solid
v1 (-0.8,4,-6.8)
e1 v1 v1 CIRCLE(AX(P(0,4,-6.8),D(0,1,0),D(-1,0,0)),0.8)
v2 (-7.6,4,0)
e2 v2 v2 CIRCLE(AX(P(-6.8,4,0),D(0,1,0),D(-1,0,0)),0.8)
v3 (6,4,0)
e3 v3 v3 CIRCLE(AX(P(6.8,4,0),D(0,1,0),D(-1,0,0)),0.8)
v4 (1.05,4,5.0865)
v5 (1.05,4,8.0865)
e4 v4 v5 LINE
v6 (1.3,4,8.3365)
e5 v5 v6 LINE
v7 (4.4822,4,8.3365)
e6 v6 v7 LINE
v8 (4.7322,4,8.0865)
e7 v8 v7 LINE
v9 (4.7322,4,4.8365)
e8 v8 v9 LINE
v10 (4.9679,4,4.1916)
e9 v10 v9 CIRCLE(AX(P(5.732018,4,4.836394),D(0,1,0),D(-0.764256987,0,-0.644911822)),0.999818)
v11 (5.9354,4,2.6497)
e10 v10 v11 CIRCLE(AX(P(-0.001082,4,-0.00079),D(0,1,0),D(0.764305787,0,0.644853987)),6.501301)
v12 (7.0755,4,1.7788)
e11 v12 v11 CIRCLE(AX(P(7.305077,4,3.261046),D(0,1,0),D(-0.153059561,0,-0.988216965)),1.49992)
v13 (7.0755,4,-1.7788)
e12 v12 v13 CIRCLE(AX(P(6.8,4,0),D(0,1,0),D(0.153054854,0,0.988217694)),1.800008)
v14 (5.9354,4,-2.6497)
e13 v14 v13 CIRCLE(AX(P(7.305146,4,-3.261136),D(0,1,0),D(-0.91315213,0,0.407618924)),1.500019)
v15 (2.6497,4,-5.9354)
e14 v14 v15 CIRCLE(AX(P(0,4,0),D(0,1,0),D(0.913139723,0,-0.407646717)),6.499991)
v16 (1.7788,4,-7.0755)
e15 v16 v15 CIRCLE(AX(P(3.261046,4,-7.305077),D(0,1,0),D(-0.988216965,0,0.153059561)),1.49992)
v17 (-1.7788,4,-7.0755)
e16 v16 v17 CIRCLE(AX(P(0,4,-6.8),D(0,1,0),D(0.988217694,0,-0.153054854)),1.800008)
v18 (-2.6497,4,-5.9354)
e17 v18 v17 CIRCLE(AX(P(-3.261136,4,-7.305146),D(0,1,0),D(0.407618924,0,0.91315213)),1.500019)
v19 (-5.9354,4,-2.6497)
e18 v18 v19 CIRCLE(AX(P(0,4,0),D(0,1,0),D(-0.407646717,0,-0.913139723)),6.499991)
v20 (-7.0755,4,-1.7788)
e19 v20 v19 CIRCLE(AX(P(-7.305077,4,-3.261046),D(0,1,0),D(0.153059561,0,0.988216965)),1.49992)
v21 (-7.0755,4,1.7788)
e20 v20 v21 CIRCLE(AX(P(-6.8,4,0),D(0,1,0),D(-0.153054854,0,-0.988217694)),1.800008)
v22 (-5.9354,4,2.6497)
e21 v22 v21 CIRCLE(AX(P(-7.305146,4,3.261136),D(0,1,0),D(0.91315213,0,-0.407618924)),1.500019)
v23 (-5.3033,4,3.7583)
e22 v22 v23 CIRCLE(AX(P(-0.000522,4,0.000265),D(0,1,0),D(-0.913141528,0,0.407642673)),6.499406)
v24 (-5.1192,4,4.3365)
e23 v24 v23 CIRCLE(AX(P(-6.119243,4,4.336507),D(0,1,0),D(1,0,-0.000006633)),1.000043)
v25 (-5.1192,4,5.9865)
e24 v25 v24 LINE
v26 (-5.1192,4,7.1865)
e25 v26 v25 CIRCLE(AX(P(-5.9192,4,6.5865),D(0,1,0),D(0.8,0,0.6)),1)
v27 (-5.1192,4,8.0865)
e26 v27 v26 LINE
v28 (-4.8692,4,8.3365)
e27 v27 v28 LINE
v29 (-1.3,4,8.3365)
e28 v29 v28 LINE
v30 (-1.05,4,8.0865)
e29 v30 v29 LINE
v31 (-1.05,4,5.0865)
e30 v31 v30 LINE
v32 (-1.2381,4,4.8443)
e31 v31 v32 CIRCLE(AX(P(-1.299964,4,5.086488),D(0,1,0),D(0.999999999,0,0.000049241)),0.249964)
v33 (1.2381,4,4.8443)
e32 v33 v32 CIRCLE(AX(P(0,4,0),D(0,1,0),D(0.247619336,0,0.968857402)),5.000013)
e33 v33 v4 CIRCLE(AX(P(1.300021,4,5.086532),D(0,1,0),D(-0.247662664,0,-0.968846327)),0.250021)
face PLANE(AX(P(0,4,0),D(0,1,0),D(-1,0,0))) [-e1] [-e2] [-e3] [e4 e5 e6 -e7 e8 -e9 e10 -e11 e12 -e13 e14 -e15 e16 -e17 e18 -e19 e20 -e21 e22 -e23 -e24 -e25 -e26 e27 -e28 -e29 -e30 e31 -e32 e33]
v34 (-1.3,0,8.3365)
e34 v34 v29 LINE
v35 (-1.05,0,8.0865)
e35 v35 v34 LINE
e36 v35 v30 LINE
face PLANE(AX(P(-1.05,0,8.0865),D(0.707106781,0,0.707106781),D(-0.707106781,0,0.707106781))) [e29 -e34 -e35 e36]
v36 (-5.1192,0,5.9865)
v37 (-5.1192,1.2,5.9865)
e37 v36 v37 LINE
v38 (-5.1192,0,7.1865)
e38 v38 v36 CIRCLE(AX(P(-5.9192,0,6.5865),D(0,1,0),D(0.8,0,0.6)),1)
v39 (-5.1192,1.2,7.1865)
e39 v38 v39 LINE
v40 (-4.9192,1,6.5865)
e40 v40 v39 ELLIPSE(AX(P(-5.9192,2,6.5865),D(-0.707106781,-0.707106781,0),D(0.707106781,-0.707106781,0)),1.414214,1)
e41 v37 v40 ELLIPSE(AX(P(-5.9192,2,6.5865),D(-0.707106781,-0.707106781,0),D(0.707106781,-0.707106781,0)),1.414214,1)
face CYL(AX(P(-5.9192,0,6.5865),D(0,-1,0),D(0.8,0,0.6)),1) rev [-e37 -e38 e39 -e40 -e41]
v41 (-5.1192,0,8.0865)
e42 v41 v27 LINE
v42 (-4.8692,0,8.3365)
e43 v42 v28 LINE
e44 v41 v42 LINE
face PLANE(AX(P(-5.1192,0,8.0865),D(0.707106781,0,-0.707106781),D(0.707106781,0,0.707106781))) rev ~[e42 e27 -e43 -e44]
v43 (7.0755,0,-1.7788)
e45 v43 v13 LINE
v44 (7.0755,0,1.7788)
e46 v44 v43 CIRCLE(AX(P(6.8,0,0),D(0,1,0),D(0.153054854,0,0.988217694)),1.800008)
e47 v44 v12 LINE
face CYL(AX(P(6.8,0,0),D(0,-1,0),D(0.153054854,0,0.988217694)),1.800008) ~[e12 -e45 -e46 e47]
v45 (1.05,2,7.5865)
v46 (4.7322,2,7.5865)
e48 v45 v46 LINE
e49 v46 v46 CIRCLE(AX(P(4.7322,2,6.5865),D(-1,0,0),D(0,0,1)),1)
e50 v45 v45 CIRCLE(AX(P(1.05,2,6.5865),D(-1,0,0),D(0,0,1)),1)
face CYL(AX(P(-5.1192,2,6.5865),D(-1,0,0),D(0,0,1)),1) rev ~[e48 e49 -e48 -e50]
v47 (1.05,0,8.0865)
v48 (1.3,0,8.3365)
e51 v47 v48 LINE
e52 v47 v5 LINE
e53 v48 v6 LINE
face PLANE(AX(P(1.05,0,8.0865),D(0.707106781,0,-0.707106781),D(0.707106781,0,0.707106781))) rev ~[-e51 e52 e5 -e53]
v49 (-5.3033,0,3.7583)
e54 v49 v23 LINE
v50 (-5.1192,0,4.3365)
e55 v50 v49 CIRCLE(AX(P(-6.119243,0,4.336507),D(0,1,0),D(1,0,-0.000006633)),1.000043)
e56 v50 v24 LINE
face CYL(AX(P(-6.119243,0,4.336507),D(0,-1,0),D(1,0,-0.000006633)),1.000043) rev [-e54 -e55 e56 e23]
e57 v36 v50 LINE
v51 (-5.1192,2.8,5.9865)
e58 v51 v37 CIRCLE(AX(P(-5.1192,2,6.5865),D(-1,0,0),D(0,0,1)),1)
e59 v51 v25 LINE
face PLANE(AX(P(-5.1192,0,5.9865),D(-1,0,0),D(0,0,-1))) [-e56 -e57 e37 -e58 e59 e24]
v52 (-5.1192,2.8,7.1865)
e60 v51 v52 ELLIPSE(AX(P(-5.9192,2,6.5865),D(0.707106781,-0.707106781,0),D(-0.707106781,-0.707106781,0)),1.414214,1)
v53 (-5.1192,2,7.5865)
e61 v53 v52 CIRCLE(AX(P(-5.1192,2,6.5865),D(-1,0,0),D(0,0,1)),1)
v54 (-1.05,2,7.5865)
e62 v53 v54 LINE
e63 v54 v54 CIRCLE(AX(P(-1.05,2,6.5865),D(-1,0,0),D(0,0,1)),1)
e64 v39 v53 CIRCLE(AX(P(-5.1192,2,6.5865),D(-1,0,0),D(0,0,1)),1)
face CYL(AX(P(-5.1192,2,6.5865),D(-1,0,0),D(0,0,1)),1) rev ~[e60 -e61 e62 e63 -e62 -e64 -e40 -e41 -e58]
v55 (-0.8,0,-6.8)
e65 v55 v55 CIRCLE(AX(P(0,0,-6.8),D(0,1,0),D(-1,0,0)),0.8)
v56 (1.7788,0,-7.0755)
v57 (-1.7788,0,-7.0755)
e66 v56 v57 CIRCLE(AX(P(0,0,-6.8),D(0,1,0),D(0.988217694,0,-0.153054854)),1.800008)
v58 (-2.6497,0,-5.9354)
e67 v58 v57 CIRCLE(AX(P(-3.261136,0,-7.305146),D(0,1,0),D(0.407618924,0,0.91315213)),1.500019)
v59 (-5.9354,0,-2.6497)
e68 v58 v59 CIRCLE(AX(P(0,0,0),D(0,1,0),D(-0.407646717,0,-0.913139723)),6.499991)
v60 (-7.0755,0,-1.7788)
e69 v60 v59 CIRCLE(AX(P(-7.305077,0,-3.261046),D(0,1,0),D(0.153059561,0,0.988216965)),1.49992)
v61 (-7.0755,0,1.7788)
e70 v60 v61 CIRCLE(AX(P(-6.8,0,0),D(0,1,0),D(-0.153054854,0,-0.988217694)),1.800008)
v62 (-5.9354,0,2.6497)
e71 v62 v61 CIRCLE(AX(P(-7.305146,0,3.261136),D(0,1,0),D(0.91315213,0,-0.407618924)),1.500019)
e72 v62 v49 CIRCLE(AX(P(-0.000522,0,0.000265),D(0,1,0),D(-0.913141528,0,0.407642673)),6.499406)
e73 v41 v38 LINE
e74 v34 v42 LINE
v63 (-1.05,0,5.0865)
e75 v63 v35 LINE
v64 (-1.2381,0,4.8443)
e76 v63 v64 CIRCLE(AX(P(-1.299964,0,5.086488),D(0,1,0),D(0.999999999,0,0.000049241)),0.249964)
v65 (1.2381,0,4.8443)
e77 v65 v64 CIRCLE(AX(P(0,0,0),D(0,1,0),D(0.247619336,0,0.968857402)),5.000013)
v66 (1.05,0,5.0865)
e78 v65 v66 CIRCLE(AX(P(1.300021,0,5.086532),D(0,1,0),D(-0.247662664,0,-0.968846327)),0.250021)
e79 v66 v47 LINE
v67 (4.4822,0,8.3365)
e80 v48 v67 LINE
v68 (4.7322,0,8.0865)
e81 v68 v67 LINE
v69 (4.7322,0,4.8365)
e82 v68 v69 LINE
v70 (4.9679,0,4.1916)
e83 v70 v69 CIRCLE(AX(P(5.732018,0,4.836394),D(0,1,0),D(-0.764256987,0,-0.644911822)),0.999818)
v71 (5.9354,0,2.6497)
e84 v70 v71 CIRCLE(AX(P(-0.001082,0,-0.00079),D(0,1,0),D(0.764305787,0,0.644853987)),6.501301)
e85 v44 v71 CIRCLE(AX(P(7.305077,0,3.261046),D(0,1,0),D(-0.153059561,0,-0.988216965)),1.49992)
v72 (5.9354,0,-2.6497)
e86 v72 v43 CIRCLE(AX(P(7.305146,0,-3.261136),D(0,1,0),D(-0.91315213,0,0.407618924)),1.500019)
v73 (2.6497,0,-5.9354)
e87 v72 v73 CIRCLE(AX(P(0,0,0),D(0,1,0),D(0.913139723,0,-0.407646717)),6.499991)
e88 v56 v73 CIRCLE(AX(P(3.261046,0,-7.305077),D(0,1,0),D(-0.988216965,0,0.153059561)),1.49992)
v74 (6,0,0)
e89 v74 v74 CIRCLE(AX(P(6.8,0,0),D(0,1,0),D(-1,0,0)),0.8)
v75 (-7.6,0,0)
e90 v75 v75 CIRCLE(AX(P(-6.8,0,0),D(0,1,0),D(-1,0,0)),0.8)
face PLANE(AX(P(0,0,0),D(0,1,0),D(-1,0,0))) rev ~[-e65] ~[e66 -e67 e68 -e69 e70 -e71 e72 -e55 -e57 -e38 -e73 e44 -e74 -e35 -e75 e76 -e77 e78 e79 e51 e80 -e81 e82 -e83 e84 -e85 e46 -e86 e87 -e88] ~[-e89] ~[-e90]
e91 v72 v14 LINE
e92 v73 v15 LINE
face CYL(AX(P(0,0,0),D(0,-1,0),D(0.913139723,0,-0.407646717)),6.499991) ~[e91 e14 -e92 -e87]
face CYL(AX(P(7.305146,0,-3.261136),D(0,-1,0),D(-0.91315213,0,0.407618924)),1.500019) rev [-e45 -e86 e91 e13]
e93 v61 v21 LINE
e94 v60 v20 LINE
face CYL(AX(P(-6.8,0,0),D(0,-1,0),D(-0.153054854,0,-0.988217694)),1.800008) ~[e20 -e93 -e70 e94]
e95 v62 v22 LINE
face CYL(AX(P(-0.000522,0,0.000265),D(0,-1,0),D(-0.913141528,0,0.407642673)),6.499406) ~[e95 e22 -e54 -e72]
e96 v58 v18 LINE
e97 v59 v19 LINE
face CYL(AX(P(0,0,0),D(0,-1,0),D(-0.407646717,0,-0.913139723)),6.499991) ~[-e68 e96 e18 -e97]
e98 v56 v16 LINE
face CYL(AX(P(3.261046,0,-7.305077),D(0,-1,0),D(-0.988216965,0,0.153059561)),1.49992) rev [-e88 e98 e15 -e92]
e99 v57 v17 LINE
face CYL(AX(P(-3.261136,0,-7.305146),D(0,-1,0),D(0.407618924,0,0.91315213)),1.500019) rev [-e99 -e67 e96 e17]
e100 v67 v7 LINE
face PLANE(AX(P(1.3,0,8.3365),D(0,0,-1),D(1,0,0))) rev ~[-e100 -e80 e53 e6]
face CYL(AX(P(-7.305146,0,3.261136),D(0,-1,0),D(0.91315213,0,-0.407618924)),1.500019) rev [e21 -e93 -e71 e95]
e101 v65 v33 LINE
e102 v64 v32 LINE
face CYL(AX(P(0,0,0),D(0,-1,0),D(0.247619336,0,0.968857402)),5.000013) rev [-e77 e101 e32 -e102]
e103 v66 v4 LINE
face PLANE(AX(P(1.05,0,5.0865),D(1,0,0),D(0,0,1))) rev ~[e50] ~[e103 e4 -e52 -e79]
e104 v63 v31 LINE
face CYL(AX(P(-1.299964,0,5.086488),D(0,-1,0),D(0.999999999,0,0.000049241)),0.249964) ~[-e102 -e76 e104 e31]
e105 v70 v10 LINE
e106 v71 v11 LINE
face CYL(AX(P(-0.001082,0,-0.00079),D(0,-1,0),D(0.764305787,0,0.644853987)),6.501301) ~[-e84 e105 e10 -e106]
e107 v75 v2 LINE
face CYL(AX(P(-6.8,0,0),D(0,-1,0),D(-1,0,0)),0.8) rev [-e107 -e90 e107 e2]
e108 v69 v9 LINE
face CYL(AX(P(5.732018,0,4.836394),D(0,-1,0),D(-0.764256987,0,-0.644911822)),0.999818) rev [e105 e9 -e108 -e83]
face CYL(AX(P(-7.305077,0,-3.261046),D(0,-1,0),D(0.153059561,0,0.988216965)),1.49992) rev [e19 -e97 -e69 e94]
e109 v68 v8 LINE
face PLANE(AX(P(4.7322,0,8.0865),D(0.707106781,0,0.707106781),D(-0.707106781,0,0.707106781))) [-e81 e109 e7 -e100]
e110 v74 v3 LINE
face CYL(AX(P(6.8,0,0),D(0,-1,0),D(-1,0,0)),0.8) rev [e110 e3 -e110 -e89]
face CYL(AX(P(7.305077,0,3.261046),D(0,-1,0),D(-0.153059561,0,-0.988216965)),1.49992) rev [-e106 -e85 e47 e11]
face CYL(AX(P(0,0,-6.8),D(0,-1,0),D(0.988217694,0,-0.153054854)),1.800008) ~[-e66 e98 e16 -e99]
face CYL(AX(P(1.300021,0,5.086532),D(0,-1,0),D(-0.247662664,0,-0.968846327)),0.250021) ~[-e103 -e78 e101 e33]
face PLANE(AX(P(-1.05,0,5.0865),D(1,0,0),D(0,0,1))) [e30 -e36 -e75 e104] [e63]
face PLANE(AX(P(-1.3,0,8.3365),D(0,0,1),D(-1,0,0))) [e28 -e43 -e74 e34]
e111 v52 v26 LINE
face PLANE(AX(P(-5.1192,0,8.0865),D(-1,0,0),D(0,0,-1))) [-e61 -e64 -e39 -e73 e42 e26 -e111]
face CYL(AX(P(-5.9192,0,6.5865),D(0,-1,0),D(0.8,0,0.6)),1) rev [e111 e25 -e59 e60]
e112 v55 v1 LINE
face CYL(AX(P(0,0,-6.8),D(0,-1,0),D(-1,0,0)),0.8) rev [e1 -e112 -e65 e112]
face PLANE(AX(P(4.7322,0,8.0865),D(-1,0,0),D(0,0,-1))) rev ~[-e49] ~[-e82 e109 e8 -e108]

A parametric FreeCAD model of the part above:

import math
import FreeCAD as App
import Part
import Sketcher
from FreeCAD import Vector
Q = App.Units.Quantity

doc = App.newDocument("Part")
body = doc.addObject("PartDesign::Body", "Body")

# Sketch on XZ plane
sketch1 = body.newObject("Sketcher::SketchObject", "Sketch")
sketch1.AttachmentSupport = (doc.getObject("XZ_Plane"), [""])
sketch1.MapMode = "FlatFace"
sketch1.addGeometry(Part.ArcOfCircle(Part.Circle(Vector(0, 0, 0), Vector(0, 0, 1), 5.000013), math.radians(104.336681), math.radians(435.663319)), False)
sketch1.addGeometry(Part.ArcOfCircle(Part.Circle(Vector(1.3, 5.0865, 0), Vector(0, 0, 1), 0.249985), math.radians(180), math.radians(255.663578)), False)
sketch1.addGeometry(Part.LineSegment(Vector(1.05, 5.0865, 0), Vector(1.05, 8.0865, 0)), False)
sketch1.addGeometry(Part.LineSegment(Vector(1.05, 8.0865, 0), Vector(1.3, 8.3365, 0)), False)
sketch1.addGeometry(Part.LineSegment(Vector(1.3, 8.3365, 0), Vector(4.4822, 8.3365, 0)), False)
sketch1.addGeometry(Part.LineSegment(Vector(4.4822, 8.3365, 0), Vector(4.7322, 8.0865, 0)), False)
sketch1.addGeometry(Part.LineSegment(Vector(4.7322, 8.0865, 0), Vector(4.7322, 4.8365, 0)), False)
sketch1.addGeometry(Part.ArcOfCircle(Part.Circle(Vector(5.7322, 4.8365, 0), Vector(0, 0, 1), 1.000025), math.radians(180), math.radians(220.156958)), False)
sketch1.addGeometry(Part.ArcOfCircle(Part.Circle(Vector(-0.001082, -0.00079, 0), Vector(0, 0, 1), 6.501301), math.radians(24.059561), math.radians(40.154729)), False)
sketch1.addGeometry(Part.ArcOfCircle(Part.Circle(Vector(7.3051, 3.2611, 0), Vector(0, 0, 1), 1.499976), math.radians(-155.945204), math.radians(-98.804826)), False)
sketch1.addGeometry(Part.ArcOfCircle(Part.Circle(Vector(6.8, 0, 0), Vector(0, 0, 1), 1.800008), math.radians(-81.195998), math.radians(81.195998)), False)
sketch1.addGeometry(Part.ArcOfCircle(Part.Circle(Vector(7.3051, -3.2611, 0), Vector(0, 0, 1), 1.499963), math.radians(98.804826), math.radians(155.945204)), False)
sketch1.addGeometry(Part.ArcOfCircle(Part.Circle(Vector(0, 0, 0), Vector(0, 0, 1), 6.499991), math.radians(-65.942909), math.radians(-24.057091)), False)
sketch1.addGeometry(Part.ArcOfCircle(Part.Circle(Vector(3.2611, -7.3051, 0), Vector(0, 0, 1), 1.499976), math.radians(114.054796), math.radians(171.195174)), False)
sketch1.addGeometry(Part.ArcOfCircle(Part.Circle(Vector(0, -6.8, 0), Vector(0, 0, 1), 1.800008), math.radians(-171.195998), math.radians(-8.804002)), False)
sketch1.addGeometry(Part.ArcOfCircle(Part.Circle(Vector(-3.2611, -7.3051, 0), Vector(0, 0, 1), 1.499963), math.radians(8.804826), math.radians(65.945204)), False)
sketch1.addGeometry(Part.ArcOfCircle(Part.Circle(Vector(0, 0, 0), Vector(0, 0, 1), 6.499991), math.radians(-155.942909), math.radians(-114.057091)), False)
sketch1.addGeometry(Part.ArcOfCircle(Part.Circle(Vector(-7.3051, -3.2611, 0), Vector(0, 0, 1), 1.499976), math.radians(24.054796), math.radians(81.195174)), False)
sketch1.addGeometry(Part.ArcOfCircle(Part.Circle(Vector(-6.8, 0, 0), Vector(0, 0, 1), 1.800008), math.radians(98.804002), math.radians(261.195998)), False)
sketch1.addGeometry(Part.ArcOfCircle(Part.Circle(Vector(-7.3051, 3.2611, 0), Vector(0, 0, 1), 1.499963), math.radians(-81.195174), math.radians(-24.054796)), False)
sketch1.addGeometry(Part.ArcOfCircle(Part.Circle(Vector(0, 0, 0), Vector(0, 0, 1), 6.499965), math.radians(144.675869), math.radians(155.942909)), False)
sketch1.addGeometry(Part.ArcOfCircle(Part.Circle(Vector(-6.1192, 4.3365, 0), Vector(0, 0, 1), 1), math.radians(-35.323876), math.radians(0)), False)
sketch1.addGeometry(Part.LineSegment(Vector(-5.1192, 4.3365, 0), Vector(-5.1192, 5.9865, 0)), False)
sketch1.addGeometry(Part.ArcOfCircle(Part.Circle(Vector(-5.9192, 6.5865, 0), Vector(0, 0, 1), 1), math.radians(-36.869898), math.radians(36.869898)), False)
sketch1.addGeometry(Part.LineSegment(Vector(-5.1192, 7.1865, 0), Vector(-5.1192, 8.0865, 0)), False)
sketch1.addGeometry(Part.LineSegment(Vector(-5.1192, 8.0865, 0), Vector(-4.8692, 8.3365, 0)), False)
sketch1.addGeometry(Part.LineSegment(Vector(-4.8692, 8.3365, 0), Vector(-1.3, 8.3365, 0)), False)
sketch1.addGeometry(Part.LineSegment(Vector(-1.3, 8.3365, 0), Vector(-1.05, 8.0865, 0)), False)
sketch1.addGeometry(Part.LineSegment(Vector(-1.05, 8.0865, 0), Vector(-1.05, 5.0865, 0)), False)
sketch1.addGeometry(Part.ArcOfCircle(Part.Circle(Vector(-1.3, 5.0865, 0), Vector(0, 0, 1), 0.25), math.radians(-75.663578), math.radians(0)), False)
sketch1.addGeometry(Part.Circle(Vector(0, -6.8, 0), Vector(0, 0, 1), 0.8), False)
sketch1.addGeometry(Part.Circle(Vector(6.8, 0, 0), Vector(0, 0, 1), 0.8), False)
sketch1.addGeometry(Part.Circle(Vector(-6.8, 0, 0), Vector(0, 0, 1), 0.8), False)
sketch1.addConstraint(Sketcher.Constraint("Tangent", 0, 2, 1, 2))
sketch1.addConstraint(Sketcher.Constraint("Tangent", 1, 1, 2, 1))
sketch1.addConstraint(Sketcher.Constraint("Coincident", 2, 2, 3, 1))
sketch1.addConstraint(Sketcher.Constraint("Coincident", 3, 2, 4, 1))
sketch1.addConstraint(Sketcher.Constraint("Coincident", 4, 2, 5, 1))
sketch1.addConstraint(Sketcher.Constraint("Coincident", 5, 2, 6, 1))
sketch1.addConstraint(Sketcher.Constraint("Tangent", 6, 2, 7, 1))
sketch1.addConstraint(Sketcher.Constraint("Tangent", 7, 2, 8, 2))
sketch1.addConstraint(Sketcher.Constraint("Tangent", 8, 1, 9, 1))
sketch1.addConstraint(Sketcher.Constraint("Tangent", 9, 2, 10, 2))
sketch1.addConstraint(Sketcher.Constraint("Tangent", 10, 1, 11, 1))
sketch1.addConstraint(Sketcher.Constraint("Tangent", 11, 2, 12, 2))
sketch1.addConstraint(Sketcher.Constraint("Tangent", 12, 1, 13, 1))
sketch1.addConstraint(Sketcher.Constraint("Tangent", 13, 2, 14, 2))
sketch1.addConstraint(Sketcher.Constraint("Tangent", 14, 1, 15, 1))
sketch1.addConstraint(Sketcher.Constraint("Tangent", 15, 2, 16, 2))
sketch1.addConstraint(Sketcher.Constraint("Tangent", 16, 1, 17, 1))
sketch1.addConstraint(Sketcher.Constraint("Tangent", 17, 2, 18, 2))
sketch1.addConstraint(Sketcher.Constraint("Tangent", 18, 1, 19, 1))
sketch1.addConstraint(Sketcher.Constraint("Tangent", 19, 2, 20, 2))
sketch1.addConstraint(Sketcher.Constraint("Tangent", 20, 1, 21, 1))
sketch1.addConstraint(Sketcher.Constraint("Tangent", 21, 2, 22, 1))
sketch1.addConstraint(Sketcher.Constraint("Coincident", 22, 2, 23, 1))
sketch1.addConstraint(Sketcher.Constraint("Coincident", 23, 2, 24, 1))
sketch1.addConstraint(Sketcher.Constraint("Coincident", 24, 2, 25, 1))
sketch1.addConstraint(Sketcher.Constraint("Coincident", 25, 2, 26, 1))
sketch1.addConstraint(Sketcher.Constraint("Coincident", 26, 2, 27, 1))
sketch1.addConstraint(Sketcher.Constraint("Coincident", 27, 2, 28, 1))
sketch1.addConstraint(Sketcher.Constraint("Tangent", 28, 2, 29, 2))
sketch1.addConstraint(Sketcher.Constraint("Tangent", 29, 1, 0, 1))
sketch1.addConstraint(Sketcher.Constraint("Vertical", 2))
sketch1.addConstraint(Sketcher.Constraint("Horizontal", 4))
sketch1.addConstraint(Sketcher.Constraint("Vertical", 6))
sketch1.addConstraint(Sketcher.Constraint("Vertical", 22))
sketch1.addConstraint(Sketcher.Constraint("Vertical", 24))
sketch1.addConstraint(Sketcher.Constraint("Horizontal", 26))
sketch1.addConstraint(Sketcher.Constraint("Vertical", 28))
sketch1.addConstraint(Sketcher.Constraint("Coincident", 0, 3, -1, 1))
sketch1.addConstraint(Sketcher.Constraint("Coincident", 12, 3, -1, 1))
sketch1.addConstraint(Sketcher.Constraint("Coincident", 16, 3, -1, 1))
sketch1.addConstraint(Sketcher.Constraint("Coincident", 20, 3, -1, 1))
sketch1.addConstraint(Sketcher.Constraint("Coincident", 30, 3, 14, 3))
sketch1.addConstraint(Sketcher.Constraint("Coincident", 31, 3, 10, 3))
sketch1.addConstraint(Sketcher.Constraint("Coincident", 32, 3, 18, 3))
sketch1.addConstraint(Sketcher.Constraint("Equal", 9, 11))
sketch1.addConstraint(Sketcher.Constraint("Equal", 11, 13))
sketch1.addConstraint(Sketcher.Constraint("Equal", 10, 14))
sketch1.addConstraint(Sketcher.Constraint("Equal", 13, 15))
sketch1.addConstraint(Sketcher.Constraint("Equal", 12, 16))
sketch1.addConstraint(Sketcher.Constraint("Equal", 15, 17))
sketch1.addConstraint(Sketcher.Constraint("Equal", 14, 18))
sketch1.addConstraint(Sketcher.Constraint("Equal", 17, 19))
sketch1.addConstraint(Sketcher.Constraint("Equal", 16, 20))
sketch1.addConstraint(Sketcher.Constraint("Equal", 7, 21))
sketch1.addConstraint(Sketcher.Constraint("Equal", 21, 23))
sketch1.addConstraint(Sketcher.Constraint("Equal", 1, 29))
sketch1.addConstraint(Sketcher.Constraint("Equal", 30, 31))
sketch1.addConstraint(Sketcher.Constraint("Equal", 31, 32))
sketch1.addConstraint(Sketcher.Constraint("Symmetric", 9, 3, 17, 3, -1, 1))
sketch1.addConstraint(Sketcher.Constraint("Symmetric", 10, 3, 18, 3, -2))
sketch1.addConstraint(Sketcher.Constraint("Symmetric", 3, 2, 26, 2, -2))
sketch1.addConstraint(Sketcher.Constraint("Symmetric", 2, 2, 27, 2, -2))
sketch1.addConstraint(Sketcher.Constraint("PointOnObject", 14, 3, -2))
sketch1.addConstraint(Sketcher.Constraint("Perpendicular", 3, 5))
sketch1.addConstraint(Sketcher.Constraint("Perpendicular", 5, 25))
sketch1.addConstraint(Sketcher.Constraint("Perpendicular", 25, 27))
sketch1.addConstraint(Sketcher.Constraint("Horizontal", 2, 2, 5, 2))
sketch1.addConstraint(Sketcher.Constraint("Horizontal", 8, 1, 19, 2))
sketch1.addConstraint(Sketcher.Constraint("Horizontal", 5, 2, 24, 2))
sketch1.addConstraint(Sketcher.Constraint("Vertical", 1, 3, 3, 2))
sketch1.addConstraint(Sketcher.Constraint("Vertical", 22, 2, 23, 2))
sketch1.addConstraint(Sketcher.Constraint("Radius", 0, Q("5 mm")))
sketch1.addConstraint(Sketcher.Constraint("Radius", 7, Q("1 mm")))
sketch1.addConstraint(Sketcher.Constraint("Diameter", 30, Q("1.6 mm")))
sketch1.addConstraint(Sketcher.Constraint("Radius", 9, Q("1.5 mm")))
sketch1.addConstraint(Sketcher.Constraint("Radius", 10, Q("1.8 mm")))
sketch1.addConstraint(Sketcher.Constraint("Radius", 12, Q("6.5 mm")))
sketch1.addConstraint(Sketcher.Constraint("DistanceY", 2, 1, 2, 2, Q("3 mm")))
sketch1.addConstraint(Sketcher.Constraint("Radius", 1, Q("0.25 mm")))
sketch1.addConstraint(Sketcher.Constraint("DistanceY", 21, 2, 25, 2, Q("4 mm")))
sketch1.addConstraint(Sketcher.Constraint("DistanceY", 1, 3, 23, 3, Q("1.5 mm")))
sketch1.addConstraint(Sketcher.Constraint("DistanceY", 7, 3, 4, 2, Q("3.5 mm")))
sketch1.addConstraint(Sketcher.Constraint("DistanceX", 23, 3, 21, 2, Q("0.8 mm")))
sketch1.addConstraint(Sketcher.Constraint("DistanceX", 27, 2, 2, 2, Q("2.1 mm")))
sketch1.addConstraint(Sketcher.Constraint("DistanceX", -1, 1, 10, 3, Q("6.8 mm")))
sketch1.addConstraint(Sketcher.Constraint("DistanceY", 14, 3, -1, 1, Q("6.8 mm")))
sketch1.addConstraint(Sketcher.Constraint("Radius", 8, Q("6.5013 mm")))
pad1 = body.newObject("PartDesign::Pad", "Pad")
pad1.Profile = sketch1
pad1.Length = 4
pad1.Reversed = True

# Sketch on YZ plane
sketch2 = body.newObject("Sketcher::SketchObject", "Sketch001")
sketch2.AttachmentSupport = (doc.getObject("YZ_Plane"), [""])
sketch2.MapMode = "FlatFace"
sketch2.AttachmentOffset = App.Placement(Vector(0, 0, -5.1192), App.Rotation())
sketch2.addGeometry(Part.Circle(Vector(2, 6.5865, 0), Vector(0, 0, 1), 1), False)
sketch2.addConstraint(Sketcher.Constraint("Diameter", 0, Q("2 mm")))
sketch2.addConstraint(Sketcher.Constraint("DistanceX", -1, 1, 0, 3, Q("2 mm")))
sketch2.addConstraint(Sketcher.Constraint("DistanceY", -1, 1, 0, 3, Q("6.5865 mm")))
pocket1 = body.newObject("PartDesign::Pocket", "Pocket")
pocket1.Profile = sketch2
pocket1.Length = 10
pocket1.Reversed = True

doc.recompute()
